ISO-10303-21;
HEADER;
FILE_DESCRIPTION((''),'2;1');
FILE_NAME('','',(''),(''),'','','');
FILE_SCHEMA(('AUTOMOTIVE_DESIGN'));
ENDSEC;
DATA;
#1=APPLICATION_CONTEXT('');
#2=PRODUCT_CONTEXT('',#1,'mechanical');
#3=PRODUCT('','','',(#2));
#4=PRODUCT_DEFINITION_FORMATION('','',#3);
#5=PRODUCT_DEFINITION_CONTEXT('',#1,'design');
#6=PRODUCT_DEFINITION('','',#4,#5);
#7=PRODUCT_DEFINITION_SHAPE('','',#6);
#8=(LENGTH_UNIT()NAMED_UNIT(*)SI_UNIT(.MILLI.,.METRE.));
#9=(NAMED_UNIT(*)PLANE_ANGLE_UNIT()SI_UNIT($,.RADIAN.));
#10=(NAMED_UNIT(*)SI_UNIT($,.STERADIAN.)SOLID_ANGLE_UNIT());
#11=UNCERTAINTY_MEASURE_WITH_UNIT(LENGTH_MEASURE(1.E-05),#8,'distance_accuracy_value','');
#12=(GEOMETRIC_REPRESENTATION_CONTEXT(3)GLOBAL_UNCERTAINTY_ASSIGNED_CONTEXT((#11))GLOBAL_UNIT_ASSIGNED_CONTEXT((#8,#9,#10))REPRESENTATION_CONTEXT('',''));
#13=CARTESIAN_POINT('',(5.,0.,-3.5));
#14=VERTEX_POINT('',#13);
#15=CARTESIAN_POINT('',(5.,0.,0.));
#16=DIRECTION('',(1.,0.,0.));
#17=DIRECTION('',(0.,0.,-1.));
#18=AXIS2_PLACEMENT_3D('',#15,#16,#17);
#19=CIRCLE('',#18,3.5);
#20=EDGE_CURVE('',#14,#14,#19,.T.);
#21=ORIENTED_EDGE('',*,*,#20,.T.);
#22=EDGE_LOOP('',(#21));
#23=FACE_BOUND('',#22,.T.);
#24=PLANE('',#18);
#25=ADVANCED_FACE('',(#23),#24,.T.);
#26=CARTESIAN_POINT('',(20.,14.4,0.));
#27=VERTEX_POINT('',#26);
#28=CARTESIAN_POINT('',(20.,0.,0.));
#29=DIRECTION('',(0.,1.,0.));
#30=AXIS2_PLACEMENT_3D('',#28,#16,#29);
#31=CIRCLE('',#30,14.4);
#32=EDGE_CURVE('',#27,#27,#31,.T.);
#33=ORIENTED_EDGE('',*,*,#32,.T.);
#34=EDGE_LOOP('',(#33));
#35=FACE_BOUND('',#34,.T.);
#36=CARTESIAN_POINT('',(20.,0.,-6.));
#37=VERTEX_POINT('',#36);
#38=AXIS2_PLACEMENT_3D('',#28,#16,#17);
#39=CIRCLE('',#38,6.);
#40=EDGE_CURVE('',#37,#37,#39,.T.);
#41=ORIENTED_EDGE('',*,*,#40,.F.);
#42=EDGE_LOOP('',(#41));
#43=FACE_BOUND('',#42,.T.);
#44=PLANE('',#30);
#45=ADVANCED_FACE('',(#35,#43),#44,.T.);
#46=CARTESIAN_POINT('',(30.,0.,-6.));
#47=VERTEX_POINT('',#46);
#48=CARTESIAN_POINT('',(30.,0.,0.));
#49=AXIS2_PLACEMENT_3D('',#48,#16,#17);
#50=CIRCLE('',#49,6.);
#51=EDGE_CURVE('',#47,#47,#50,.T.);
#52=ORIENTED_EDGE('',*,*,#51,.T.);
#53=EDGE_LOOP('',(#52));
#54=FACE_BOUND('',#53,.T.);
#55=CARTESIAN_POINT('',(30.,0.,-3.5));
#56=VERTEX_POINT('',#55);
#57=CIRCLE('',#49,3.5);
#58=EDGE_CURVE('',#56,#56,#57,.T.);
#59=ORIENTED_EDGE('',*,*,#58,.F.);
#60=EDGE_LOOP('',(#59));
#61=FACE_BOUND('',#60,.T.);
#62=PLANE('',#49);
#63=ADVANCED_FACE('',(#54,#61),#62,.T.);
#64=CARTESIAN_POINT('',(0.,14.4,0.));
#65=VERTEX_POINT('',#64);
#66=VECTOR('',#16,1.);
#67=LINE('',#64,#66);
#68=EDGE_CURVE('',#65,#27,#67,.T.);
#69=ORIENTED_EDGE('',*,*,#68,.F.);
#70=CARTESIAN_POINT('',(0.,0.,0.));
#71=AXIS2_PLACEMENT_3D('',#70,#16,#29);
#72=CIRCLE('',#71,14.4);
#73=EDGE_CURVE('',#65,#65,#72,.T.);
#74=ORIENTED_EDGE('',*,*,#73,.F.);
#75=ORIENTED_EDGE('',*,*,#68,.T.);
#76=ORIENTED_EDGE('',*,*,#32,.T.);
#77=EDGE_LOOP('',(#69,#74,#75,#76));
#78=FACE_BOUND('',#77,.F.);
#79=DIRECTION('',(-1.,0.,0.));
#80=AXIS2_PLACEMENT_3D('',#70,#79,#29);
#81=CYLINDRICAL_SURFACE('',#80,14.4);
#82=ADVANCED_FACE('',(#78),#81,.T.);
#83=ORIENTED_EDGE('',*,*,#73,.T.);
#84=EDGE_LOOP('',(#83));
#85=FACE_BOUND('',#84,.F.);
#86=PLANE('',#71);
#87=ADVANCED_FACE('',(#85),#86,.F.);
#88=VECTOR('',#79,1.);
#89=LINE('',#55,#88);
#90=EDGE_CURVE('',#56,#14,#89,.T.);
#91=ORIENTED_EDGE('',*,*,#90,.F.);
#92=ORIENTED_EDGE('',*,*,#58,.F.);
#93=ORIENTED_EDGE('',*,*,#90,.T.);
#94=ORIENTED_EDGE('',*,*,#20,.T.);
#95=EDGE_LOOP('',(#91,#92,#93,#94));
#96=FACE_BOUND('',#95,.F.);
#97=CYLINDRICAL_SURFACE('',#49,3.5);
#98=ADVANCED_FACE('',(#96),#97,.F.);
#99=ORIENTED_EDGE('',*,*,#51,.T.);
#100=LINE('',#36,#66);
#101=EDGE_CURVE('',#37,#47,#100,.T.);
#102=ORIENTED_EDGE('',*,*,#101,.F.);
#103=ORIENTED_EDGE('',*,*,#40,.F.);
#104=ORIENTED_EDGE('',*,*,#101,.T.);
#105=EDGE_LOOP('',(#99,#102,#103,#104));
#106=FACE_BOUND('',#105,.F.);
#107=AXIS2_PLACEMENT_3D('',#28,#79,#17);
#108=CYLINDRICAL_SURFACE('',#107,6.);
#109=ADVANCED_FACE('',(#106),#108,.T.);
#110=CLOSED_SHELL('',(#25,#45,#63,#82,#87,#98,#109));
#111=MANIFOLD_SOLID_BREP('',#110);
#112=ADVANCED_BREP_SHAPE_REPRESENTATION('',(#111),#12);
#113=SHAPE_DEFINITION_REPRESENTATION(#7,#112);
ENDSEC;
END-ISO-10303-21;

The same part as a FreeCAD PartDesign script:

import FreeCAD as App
import Part
import Sketcher
from FreeCAD import Vector

doc = App.newDocument("Part")
body = doc.addObject("PartDesign::Body", "Body")

sketch1 = body.newObject("Sketcher::SketchObject", "Sketch")
sketch1.AttachmentSupport = (doc.getObject("YZ_Plane"), [""])
sketch1.MapMode = "FlatFace"
sketch1.addGeometry(Part.Circle(Vector(0, 0, 0), Vector(0, 0, 1), 14), False)
sketch1.addConstraint(Sketcher.Constraint("Coincident", 0, 3, -1, 1))
sketch1.addConstraint(Sketcher.Constraint("Diameter", 0, 28.8))
pad1 = body.newObject("PartDesign::Pad", "Pad")
pad1.Profile = sketch1
pad1.Length = 20

sketch2 = body.newObject("Sketcher::SketchObject", "Sketch001")
sketch2.AttachmentSupport = (doc.getObject("YZ_Plane"), [""])
sketch2.MapMode = "FlatFace"
sketch2.AttachmentOffset = App.Placement(Vector(0, 0, 20), App.Rotation())
sketch2.addGeometry(Part.Circle(Vector(0, 0, 0), Vector(0, 0, 1), 6), False)
sketch2.addConstraint(Sketcher.Constraint("Coincident", 0, 3, -1, 1))
sketch2.addConstraint(Sketcher.Constraint("Diameter", 0, 12.0))
pad2 = body.newObject("PartDesign::Pad", "Pad001")
pad2.Profile = sketch2
pad2.Length = 10

sketch3 = body.newObject("Sketcher::SketchObject", "Sketch002")
sketch3.AttachmentSupport = (doc.getObject("YZ_Plane"), [""])
sketch3.MapMode = "FlatFace"
sketch3.AttachmentOffset = App.Placement(Vector(0, 0, 30), App.Rotation())
sketch3.addGeometry(Part.Circle(Vector(0, 0, 0), Vector(0, 0, 1), 3.5), False)
sketch3.addConstraint(Sketcher.Constraint("Coincident", 0, 3, -1, 1))
sketch3.addConstraint(Sketcher.Constraint("Diameter", 0, 7.0))
pocket1 = body.newObject("PartDesign::Pocket", "Pocket")
pocket1.Profile = sketch3
pocket1.Length = 25

doc.recompute()
